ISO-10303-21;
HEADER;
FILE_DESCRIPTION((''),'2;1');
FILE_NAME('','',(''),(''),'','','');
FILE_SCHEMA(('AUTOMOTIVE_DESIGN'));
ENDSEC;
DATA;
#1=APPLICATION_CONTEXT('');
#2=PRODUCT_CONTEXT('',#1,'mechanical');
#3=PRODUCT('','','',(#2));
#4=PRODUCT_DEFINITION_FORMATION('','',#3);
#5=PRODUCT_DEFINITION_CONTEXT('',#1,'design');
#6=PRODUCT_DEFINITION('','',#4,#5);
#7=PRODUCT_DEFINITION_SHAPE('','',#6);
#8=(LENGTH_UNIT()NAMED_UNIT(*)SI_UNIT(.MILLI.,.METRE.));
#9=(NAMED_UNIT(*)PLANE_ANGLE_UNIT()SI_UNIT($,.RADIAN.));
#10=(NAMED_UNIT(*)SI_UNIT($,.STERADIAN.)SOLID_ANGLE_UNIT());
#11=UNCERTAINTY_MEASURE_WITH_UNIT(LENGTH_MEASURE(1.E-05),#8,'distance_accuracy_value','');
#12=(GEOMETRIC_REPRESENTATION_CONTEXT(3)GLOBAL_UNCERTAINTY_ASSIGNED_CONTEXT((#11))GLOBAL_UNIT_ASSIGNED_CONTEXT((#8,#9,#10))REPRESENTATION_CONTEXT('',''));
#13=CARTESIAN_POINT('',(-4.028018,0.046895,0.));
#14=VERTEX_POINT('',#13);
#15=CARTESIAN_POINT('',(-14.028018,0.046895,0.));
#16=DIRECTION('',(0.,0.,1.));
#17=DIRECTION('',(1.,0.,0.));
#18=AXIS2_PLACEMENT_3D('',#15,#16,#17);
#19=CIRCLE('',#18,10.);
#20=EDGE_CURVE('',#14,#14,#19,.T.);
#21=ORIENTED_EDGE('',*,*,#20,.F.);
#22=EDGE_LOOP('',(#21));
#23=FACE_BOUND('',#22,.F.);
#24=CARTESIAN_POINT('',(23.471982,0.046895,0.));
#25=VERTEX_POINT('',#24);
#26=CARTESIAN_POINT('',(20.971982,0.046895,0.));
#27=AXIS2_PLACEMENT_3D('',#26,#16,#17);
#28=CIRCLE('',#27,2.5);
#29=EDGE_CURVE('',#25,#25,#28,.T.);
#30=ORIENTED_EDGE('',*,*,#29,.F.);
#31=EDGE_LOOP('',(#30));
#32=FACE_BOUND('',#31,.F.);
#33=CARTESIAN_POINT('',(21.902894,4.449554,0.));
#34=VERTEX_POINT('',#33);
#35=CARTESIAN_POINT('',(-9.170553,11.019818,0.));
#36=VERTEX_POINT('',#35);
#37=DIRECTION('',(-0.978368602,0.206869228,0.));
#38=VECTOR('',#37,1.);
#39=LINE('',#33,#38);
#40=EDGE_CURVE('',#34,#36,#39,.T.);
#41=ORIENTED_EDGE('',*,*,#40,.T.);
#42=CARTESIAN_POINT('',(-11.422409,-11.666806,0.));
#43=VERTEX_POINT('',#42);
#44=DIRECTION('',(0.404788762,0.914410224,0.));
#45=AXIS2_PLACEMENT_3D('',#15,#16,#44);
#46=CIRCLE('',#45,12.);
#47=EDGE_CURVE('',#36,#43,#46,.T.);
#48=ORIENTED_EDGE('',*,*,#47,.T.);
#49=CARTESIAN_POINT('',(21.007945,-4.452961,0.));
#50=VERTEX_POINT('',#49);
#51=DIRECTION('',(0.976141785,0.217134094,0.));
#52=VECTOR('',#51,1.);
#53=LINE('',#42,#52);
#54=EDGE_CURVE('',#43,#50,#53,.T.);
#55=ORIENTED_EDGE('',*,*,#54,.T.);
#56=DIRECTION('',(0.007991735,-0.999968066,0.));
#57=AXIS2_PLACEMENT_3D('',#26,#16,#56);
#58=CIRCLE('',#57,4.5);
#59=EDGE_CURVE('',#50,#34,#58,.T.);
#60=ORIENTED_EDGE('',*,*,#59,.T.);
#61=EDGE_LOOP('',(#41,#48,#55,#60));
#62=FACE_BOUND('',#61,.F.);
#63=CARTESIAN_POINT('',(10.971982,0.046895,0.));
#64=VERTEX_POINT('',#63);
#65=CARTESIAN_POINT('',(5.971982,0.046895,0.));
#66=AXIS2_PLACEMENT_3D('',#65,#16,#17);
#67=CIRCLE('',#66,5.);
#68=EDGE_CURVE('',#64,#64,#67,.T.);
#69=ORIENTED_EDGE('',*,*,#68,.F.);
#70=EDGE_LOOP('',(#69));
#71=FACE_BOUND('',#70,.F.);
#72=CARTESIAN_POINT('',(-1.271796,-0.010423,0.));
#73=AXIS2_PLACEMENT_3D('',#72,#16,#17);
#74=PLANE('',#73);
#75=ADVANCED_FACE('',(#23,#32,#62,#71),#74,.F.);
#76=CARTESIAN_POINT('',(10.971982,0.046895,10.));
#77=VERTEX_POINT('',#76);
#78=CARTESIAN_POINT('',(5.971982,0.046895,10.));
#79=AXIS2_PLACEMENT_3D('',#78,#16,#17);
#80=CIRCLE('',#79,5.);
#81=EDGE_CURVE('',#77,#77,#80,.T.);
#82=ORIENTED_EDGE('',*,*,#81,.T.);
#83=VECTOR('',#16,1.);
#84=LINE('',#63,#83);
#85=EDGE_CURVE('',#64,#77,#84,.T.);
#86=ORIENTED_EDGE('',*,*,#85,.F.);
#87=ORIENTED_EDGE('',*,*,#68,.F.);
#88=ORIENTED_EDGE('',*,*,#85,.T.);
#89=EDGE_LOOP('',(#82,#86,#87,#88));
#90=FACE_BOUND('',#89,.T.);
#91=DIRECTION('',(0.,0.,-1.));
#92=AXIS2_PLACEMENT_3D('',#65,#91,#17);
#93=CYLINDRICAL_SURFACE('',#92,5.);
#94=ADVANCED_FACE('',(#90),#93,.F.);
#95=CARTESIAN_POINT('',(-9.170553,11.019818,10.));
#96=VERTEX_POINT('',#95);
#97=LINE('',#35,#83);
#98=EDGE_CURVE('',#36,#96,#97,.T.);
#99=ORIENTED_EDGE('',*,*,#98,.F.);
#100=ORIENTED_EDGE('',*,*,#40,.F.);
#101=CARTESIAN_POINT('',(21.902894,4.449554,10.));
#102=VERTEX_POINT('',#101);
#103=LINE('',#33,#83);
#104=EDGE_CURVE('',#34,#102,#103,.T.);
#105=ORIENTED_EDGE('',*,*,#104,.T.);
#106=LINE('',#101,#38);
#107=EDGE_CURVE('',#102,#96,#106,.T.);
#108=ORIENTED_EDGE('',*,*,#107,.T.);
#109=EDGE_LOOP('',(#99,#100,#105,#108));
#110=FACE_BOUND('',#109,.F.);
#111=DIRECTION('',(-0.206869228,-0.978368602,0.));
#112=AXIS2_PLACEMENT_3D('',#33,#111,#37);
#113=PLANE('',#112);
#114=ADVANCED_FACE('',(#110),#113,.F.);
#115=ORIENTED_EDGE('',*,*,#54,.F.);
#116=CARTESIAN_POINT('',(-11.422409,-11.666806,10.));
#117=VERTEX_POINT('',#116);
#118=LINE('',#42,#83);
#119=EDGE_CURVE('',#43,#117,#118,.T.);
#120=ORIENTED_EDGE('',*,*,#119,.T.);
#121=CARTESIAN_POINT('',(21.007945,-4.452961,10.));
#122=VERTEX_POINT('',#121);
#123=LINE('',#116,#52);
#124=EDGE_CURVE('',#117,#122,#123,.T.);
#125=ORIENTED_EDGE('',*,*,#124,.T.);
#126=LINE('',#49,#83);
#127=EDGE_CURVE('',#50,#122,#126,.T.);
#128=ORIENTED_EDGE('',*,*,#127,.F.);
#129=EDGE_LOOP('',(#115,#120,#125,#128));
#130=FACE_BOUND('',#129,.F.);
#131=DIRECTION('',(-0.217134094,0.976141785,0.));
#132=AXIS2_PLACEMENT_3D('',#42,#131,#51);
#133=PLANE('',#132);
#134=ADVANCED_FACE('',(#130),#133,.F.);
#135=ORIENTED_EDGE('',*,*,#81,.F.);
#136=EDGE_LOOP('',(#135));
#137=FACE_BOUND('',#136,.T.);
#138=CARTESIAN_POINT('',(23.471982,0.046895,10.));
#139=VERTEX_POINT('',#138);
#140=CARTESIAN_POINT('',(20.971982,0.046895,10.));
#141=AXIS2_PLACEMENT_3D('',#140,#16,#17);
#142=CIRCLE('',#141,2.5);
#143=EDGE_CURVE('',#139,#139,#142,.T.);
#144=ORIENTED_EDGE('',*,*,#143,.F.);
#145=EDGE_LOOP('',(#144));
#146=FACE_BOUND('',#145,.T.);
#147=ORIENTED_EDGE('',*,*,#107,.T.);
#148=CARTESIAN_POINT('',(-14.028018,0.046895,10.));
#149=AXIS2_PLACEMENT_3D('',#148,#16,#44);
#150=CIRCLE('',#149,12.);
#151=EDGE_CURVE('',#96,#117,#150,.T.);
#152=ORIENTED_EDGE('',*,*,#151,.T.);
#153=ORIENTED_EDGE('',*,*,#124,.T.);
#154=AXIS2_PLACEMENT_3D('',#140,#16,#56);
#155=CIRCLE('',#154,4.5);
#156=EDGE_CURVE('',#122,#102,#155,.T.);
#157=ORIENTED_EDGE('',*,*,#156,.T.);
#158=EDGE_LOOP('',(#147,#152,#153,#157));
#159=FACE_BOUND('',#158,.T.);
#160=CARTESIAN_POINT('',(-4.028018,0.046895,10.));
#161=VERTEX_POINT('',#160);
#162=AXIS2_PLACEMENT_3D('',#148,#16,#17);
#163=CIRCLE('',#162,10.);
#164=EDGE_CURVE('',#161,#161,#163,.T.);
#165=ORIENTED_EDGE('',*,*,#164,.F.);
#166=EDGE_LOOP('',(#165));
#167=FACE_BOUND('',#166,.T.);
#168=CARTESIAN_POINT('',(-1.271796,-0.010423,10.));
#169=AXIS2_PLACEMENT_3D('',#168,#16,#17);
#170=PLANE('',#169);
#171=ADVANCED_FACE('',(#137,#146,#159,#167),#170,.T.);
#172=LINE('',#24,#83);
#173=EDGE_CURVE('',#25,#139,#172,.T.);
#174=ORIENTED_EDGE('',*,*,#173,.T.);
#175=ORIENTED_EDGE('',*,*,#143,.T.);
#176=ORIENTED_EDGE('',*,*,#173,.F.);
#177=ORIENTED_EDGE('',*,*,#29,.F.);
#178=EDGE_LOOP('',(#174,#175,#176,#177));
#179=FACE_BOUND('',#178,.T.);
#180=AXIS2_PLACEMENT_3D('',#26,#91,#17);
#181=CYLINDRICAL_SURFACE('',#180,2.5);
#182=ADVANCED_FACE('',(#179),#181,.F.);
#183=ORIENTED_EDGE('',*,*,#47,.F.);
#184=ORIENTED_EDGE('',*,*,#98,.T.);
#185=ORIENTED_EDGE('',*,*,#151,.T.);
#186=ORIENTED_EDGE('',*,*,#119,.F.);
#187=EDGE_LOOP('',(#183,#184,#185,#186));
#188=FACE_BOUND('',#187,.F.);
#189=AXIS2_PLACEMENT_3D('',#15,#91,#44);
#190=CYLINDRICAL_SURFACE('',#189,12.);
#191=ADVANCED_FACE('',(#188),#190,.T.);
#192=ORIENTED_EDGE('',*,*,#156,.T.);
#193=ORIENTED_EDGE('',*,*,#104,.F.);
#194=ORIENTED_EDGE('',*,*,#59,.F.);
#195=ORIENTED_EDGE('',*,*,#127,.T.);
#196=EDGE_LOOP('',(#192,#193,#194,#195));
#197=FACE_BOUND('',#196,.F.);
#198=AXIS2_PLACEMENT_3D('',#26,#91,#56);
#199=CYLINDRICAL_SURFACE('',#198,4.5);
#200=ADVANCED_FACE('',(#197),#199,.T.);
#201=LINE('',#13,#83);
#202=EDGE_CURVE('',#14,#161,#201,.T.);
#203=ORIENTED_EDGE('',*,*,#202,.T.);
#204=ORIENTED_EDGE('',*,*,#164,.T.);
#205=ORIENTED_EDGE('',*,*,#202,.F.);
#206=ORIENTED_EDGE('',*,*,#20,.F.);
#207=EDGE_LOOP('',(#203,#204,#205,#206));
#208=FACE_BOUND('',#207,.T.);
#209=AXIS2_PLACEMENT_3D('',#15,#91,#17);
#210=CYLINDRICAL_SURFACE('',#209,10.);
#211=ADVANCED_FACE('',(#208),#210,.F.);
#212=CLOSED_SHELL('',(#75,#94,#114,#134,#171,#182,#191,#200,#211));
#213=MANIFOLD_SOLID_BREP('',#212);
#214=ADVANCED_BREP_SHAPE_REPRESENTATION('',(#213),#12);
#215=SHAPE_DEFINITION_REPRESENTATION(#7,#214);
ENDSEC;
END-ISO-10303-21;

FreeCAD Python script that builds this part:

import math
import FreeCAD as App
import Part
import Sketcher
from FreeCAD import Vector
Q = App.Units.Quantity

doc = App.newDocument("Part")
body = doc.addObject("PartDesign::Body", "Body")

sketch1 = body.newObject("Sketcher::SketchObject", "Sketch")
sketch1.AttachmentSupport = (doc.getObject("XY_Plane"), [""])
sketch1.MapMode = "FlatFace"
sketch1.addGeometry([
    Part.LineSegment(Vector(-11.422409, -11.666806, 0), Vector(21.007945, -4.452961, 0)),
    Part.ArcOfCircle(Part.Circle(Vector(20.971982, 0.046895, 0), Vector(0, 0, 1), 4.5), math.radians(-89.542102), math.radians(78.061053)),
    Part.LineSegment(Vector(21.902894, 4.449554, 0), Vector(-9.170553, 11.019818, 0)),
    Part.ArcOfCircle(Part.Circle(Vector(-14.028018, 0.046895, 0), Vector(0, 0, 1), 12), math.radians(66.122109), math.radians(282.54076)),
    Part.Circle(Vector(-14.028018, 0.046895, 0), Vector(0, 0, 1), 10),
    Part.Circle(Vector(5.971982, 0.046895, 0), Vector(0, 0, 1), 5),
    Part.Circle(Vector(20.971982, 0.046895, 0), Vector(0, 0, 1), 2.5),
], False)
sketch1.addConstraint([
    Sketcher.Constraint("Coincident", 0, 2, 1, 1),
    Sketcher.Constraint("Coincident", 1, 2, 2, 1),
    Sketcher.Constraint("Coincident", 2, 2, 3, 1),
    Sketcher.Constraint("Coincident", 3, 2, 0, 1),
    Sketcher.Constraint("Coincident", 4, 3, 3, 3),
    Sketcher.Constraint("Coincident", 6, 3, 1, 3),
    Sketcher.Constraint("Diameter", 4, Q("20 mm")),
    Sketcher.Constraint("Diameter", 5, Q("10 mm")),
    Sketcher.Constraint("Diameter", 6, Q("5 mm")),
    Sketcher.Constraint("Radius", 3, Q("12 mm")),
    Sketcher.Constraint("Radius", 1, Q("4.5 mm")),
    Sketcher.Constraint("DistanceX", 3, 3, 1, 3, Q("35 mm")),
    Sketcher.Constraint("DistanceX", 5, 3, 1, 3, Q("15 mm")),
    Sketcher.Constraint("DistanceY", 3, 2, 4, 3, Q("11.713701 mm")),
    Sketcher.Constraint("DistanceY", 3, 2, 5, 3, Q("11.713701 mm")),
    Sketcher.Constraint("Distance", 2, Q("31.76047 mm")),
    Sketcher.Constraint("DistanceX", 3, 3, -1, 1, Q("14.028018 mm")),
    Sketcher.Constraint("DistanceY", 0, 2, -1, 1, Q("4.452961 mm")),
    Sketcher.Constraint("DistanceY", -1, 1, 2, 2, Q("11.019818 mm")),
    Sketcher.Constraint("DistanceX", 1, 3, 1, 2, Q("0.930912 mm")),
    Sketcher.Constraint("DistanceX", 0, 2, 1, 2, Q("0.894949 mm")),
])
pad1 = body.newObject("PartDesign::Pad", "Pad")
pad1.Profile = sketch1
pad1.Length = 10

doc.recompute()
